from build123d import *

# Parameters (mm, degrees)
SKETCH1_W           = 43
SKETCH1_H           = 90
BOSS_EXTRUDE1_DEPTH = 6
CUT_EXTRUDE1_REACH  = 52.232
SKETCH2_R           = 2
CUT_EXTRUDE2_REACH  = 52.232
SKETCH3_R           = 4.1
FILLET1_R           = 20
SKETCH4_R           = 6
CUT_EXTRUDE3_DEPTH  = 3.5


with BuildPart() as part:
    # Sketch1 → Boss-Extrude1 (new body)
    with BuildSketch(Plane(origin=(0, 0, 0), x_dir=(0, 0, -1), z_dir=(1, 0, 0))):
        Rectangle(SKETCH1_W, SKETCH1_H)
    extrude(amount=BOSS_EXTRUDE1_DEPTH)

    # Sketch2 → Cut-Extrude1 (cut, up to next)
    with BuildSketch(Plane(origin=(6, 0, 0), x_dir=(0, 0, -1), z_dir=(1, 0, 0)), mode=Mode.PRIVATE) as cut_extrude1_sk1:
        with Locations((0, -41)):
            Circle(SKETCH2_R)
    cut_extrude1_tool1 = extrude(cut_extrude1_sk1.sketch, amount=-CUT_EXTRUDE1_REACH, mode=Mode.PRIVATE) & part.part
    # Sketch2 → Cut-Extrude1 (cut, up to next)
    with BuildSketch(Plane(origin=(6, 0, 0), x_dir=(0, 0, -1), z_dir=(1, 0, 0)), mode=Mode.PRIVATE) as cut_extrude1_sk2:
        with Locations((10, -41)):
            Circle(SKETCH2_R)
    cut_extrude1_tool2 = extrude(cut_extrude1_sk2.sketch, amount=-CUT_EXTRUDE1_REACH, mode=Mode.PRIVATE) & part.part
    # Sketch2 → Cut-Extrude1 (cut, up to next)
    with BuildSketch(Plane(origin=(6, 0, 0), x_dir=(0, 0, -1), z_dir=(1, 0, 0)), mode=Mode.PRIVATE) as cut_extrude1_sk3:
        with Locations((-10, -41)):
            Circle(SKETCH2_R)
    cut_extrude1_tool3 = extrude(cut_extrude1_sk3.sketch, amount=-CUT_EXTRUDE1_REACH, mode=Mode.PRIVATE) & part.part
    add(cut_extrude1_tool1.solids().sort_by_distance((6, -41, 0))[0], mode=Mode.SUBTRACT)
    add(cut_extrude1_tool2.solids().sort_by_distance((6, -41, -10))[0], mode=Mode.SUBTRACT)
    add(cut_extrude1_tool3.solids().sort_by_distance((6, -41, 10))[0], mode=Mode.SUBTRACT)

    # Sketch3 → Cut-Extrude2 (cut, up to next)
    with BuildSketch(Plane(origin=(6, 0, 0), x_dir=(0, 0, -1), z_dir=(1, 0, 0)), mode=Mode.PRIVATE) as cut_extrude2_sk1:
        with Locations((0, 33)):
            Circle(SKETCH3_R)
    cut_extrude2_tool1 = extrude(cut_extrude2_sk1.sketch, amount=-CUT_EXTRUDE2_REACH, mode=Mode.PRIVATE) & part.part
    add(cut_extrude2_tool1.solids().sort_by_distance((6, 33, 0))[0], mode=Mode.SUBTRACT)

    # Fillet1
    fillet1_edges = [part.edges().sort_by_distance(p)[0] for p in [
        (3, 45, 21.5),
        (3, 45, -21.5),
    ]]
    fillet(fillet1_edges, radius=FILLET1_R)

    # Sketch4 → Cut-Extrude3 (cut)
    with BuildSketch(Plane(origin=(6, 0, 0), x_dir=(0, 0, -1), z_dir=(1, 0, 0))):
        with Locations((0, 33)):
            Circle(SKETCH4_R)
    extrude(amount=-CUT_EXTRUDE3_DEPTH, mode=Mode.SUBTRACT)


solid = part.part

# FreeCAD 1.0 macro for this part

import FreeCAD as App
import Part
import Sketcher

V = App.Vector


def edges_at(feature, points):
    """Names of the edges that pass closest to the given points."""
    edges = feature.Shape.Edges
    near = lambda p: min(range(len(edges)), key=lambda i: edges[i].distToShape(Part.Vertex(*p))[0])
    return sorted({f"Edge{near(p) + 1}" for p in points})


def add_polygon(sketch, points):
    """Adds a closed chain of lines whose ends are joined by coincident constraints."""
    first, n = sketch.GeometryCount, len(points)
    for a, b in zip(points, points[1:] + points[:1]):
        sketch.addGeometry(Part.LineSegment(App.Vector(*a, 0), App.Vector(*b, 0)), False)
    for i in range(n):
        sketch.addConstraint(Sketcher.Constraint("Coincident", first + i, 2, first + (i + 1) % n, 1))

doc = App.newDocument("Part")
body = doc.addObject("PartDesign::Body", "Body")

# Sketch on YZ plane
sketch1 = body.newObject("Sketcher::SketchObject", "Sketch")
sketch1.AttachmentSupport = (doc.getObject("YZ_Plane"), [""])
sketch1.MapMode = "FlatFace"
add_polygon(sketch1, [(45, 22), (-45, 22), (-45, -22), (45, -22)])  # lines 0-3
sketch1.addConstraint(Sketcher.Constraint("Horizontal", 0))
sketch1.addConstraint(Sketcher.Constraint("Vertical", 1))
sketch1.addConstraint(Sketcher.Constraint("Horizontal", 2))
sketch1.addConstraint(Sketcher.Constraint("Vertical", 3))
sketch1.addConstraint(Sketcher.Constraint("Symmetric", 0, 2, 2, 2, -1, 1))
sketch1.addConstraint(Sketcher.Constraint("DistanceX", 0, 2, 0, 1, 90.0))
sketch1.addConstraint(Sketcher.Constraint("DistanceY", 1, 2, 1, 1, 43.0))
pad1 = body.newObject("PartDesign::Pad", "Pad")
pad1.Profile = sketch1
pad1.Length = 6

# Sketch on YZ plane
sketch2 = body.newObject("Sketcher::SketchObject", "Sketch001")
sketch2.AttachmentSupport = (doc.getObject("YZ_Plane"), [""])
sketch2.MapMode = "FlatFace"
sketch2.AttachmentOffset = App.Placement(V(0, 0, 6), App.Rotation())
sketch2.addGeometry(Part.Circle(V(-41, 0, 0), V(0, 0, 1), 2), False)
sketch2.addConstraint(Sketcher.Constraint("PointOnObject", 0, 3, -1))
sketch2.addConstraint(Sketcher.Constraint("Diameter", 0, 4.0))
sketch2.addConstraint(Sketcher.Constraint("DistanceX", 0, 3, -1, 1, 41.0))
pocket1 = body.newObject("PartDesign::Pocket", "Pocket")
pocket1.Profile = sketch2
pocket1.Type = "UpToFirst"

# Sketch on YZ plane
sketch3 = body.newObject("Sketcher::SketchObject", "Sketch002")
sketch3.AttachmentSupport = (doc.getObject("YZ_Plane"), [""])
sketch3.MapMode = "FlatFace"
sketch3.AttachmentOffset = App.Placement(V(0, 0, 6), App.Rotation())
sketch3.addGeometry(Part.Circle(V(-41, -10, 0), V(0, 0, 1), 2), False)
sketch3.addConstraint(Sketcher.Constraint("Diameter", 0, 4.0))
sketch3.addConstraint(Sketcher.Constraint("DistanceX", 0, 3, -1, 1, 41.0))
sketch3.addConstraint(Sketcher.Constraint("DistanceY", 0, 3, -1, 1, 10.0))
pocket2 = body.newObject("PartDesign::Pocket", "Pocket001")
pocket2.Profile = sketch3
pocket2.Type = "UpToFirst"

# Sketch on YZ plane
sketch4 = body.newObject("Sketcher::SketchObject", "Sketch003")
sketch4.AttachmentSupport = (doc.getObject("YZ_Plane"), [""])
sketch4.MapMode = "FlatFace"
sketch4.AttachmentOffset = App.Placement(V(0, 0, 6), App.Rotation())
sketch4.addGeometry(Part.Circle(V(-41, 10, 0), V(0, 0, 1), 2), False)
sketch4.addConstraint(Sketcher.Constraint("Diameter", 0, 4.0))
sketch4.addConstraint(Sketcher.Constraint("DistanceX", 0, 3, -1, 1, 41.0))
sketch4.addConstraint(Sketcher.Constraint("DistanceY", -1, 1, 0, 3, 10.0))
pocket3 = body.newObject("PartDesign::Pocket", "Pocket002")
pocket3.Profile = sketch4
pocket3.Type = "UpToFirst"

# Sketch on YZ plane
sketch5 = body.newObject("Sketcher::SketchObject", "Sketch004")
sketch5.AttachmentSupport = (doc.getObject("YZ_Plane"), [""])
sketch5.MapMode = "FlatFace"
sketch5.AttachmentOffset = App.Placement(V(0, 0, 6), App.Rotation())
sketch5.addGeometry(Part.Circle(V(33, 0, 0), V(0, 0, 1), 4.1), False)
sketch5.addConstraint(Sketcher.Constraint("PointOnObject", 0, 3, -1))
sketch5.addConstraint(Sketcher.Constraint("Diameter", 0, 8.2))
sketch5.addConstraint(Sketcher.Constraint("DistanceX", -1, 1, 0, 3, 33.0))
pocket4 = body.newObject("PartDesign::Pocket", "Pocket003")
pocket4.Profile = sketch5
pocket4.Type = "UpToFirst"
doc.recompute()

fillet = body.newObject("PartDesign::Fillet", "Fillet")
fillet.Base = (pocket4, edges_at(pocket4, [(3, 45, 21.5), (3, 45, -21.5)]))
fillet.Radius = 20

# Sketch on YZ plane
sketch6 = body.newObject("Sketcher::SketchObject", "Sketch005")
sketch6.AttachmentSupport = (doc.getObject("YZ_Plane"), [""])
sketch6.MapMode = "FlatFace"
sketch6.AttachmentOffset = App.Placement(V(0, 0, 6), App.Rotation())
sketch6.addGeometry(Part.Circle(V(33, 0, 0), V(0, 0, 1), 6), False)
sketch6.addConstraint(Sketcher.Constraint("PointOnObject", 0, 3, -1))
sketch6.addConstraint(Sketcher.Constraint("Diameter", 0, 12.0))
sketch6.addConstraint(Sketcher.Constraint("DistanceX", -1, 1, 0, 3, 33.0))
pocket5 = body.newObject("PartDesign::Pocket", "Pocket004")
pocket5.Profile = sketch6
pocket5.Length = 3.5

doc.recompute()
